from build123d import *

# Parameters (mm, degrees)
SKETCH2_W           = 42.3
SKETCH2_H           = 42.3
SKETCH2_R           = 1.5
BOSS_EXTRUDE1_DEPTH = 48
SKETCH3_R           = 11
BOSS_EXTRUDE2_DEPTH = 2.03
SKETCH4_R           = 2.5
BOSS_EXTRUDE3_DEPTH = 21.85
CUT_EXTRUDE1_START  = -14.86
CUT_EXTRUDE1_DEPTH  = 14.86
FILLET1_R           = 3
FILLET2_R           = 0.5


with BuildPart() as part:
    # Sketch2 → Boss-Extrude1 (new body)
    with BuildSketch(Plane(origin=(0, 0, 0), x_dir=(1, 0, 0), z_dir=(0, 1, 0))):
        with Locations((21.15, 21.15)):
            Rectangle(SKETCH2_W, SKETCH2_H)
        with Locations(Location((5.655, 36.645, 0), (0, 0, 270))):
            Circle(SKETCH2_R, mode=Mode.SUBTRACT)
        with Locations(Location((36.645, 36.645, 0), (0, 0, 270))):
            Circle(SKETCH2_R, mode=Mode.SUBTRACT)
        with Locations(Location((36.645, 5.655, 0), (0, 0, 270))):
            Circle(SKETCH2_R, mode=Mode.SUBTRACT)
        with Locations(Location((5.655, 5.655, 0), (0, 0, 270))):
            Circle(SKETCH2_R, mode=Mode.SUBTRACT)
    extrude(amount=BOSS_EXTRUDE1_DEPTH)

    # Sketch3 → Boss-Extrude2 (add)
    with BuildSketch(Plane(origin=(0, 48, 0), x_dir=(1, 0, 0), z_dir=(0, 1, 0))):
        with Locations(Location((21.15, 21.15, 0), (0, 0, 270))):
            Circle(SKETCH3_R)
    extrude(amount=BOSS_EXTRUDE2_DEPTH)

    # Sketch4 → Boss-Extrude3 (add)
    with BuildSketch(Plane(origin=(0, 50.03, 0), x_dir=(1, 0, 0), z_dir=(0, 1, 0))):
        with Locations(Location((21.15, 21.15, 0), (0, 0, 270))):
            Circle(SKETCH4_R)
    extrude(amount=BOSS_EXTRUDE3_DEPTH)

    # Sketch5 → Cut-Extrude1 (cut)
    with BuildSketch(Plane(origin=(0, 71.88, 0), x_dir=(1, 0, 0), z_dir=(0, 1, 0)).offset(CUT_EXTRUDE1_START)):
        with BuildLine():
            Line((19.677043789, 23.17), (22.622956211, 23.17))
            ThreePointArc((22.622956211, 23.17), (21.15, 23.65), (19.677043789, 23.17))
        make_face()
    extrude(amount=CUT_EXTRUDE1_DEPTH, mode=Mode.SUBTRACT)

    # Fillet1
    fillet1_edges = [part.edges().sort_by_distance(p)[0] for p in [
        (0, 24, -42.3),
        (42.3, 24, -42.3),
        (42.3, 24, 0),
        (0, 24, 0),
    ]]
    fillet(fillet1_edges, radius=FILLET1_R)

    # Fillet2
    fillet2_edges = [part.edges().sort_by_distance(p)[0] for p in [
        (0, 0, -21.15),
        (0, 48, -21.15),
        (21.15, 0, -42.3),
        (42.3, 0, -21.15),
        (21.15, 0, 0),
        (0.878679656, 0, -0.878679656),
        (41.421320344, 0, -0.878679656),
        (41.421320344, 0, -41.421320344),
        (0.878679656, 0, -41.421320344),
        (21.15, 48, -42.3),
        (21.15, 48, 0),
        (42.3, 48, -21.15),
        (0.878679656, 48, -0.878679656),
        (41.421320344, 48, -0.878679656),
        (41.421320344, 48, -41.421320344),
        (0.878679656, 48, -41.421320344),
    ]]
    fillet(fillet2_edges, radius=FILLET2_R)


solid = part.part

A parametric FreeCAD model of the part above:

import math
import FreeCAD as App
import Part
import Sketcher


def edges_at(feature, points):
    """Names of the edges that pass closest to the given points."""
    edges = feature.Shape.Edges
    near = lambda p: min(range(len(edges)), key=lambda i: edges[i].distToShape(Part.Vertex(*p))[0])
    return sorted({f"Edge{near(p) + 1}" for p in points})


def add_polygon(sketch, points):
    """Adds a closed chain of lines whose ends are joined by coincident constraints."""
    first, n = sketch.GeometryCount, len(points)
    for a, b in zip(points, points[1:] + points[:1]):
        sketch.addGeometry(Part.LineSegment(App.Vector(*a, 0), App.Vector(*b, 0)), False)
    for i in range(n):
        sketch.addConstraint(Sketcher.Constraint("Coincident", first + i, 2, first + (i + 1) % n, 1))

doc = App.newDocument("Part")
body = doc.addObject("PartDesign::Body", "Body")

sketch1 = doc.addObject("Sketcher::SketchObject", "Sketch")
body.addObject(sketch1)
sketch1.AttachmentSupport = (doc.XZ_Plane, [""])
sketch1.MapMode = "FlatFace"
add_polygon(sketch1, [(0, -42.3), (0, 0), (42.3, 0), (42.3, -42.3)])
sketch1.addGeometry(Part.Circle(App.Vector(5.7, -5.7, 0), App.Vector(0, 0, 1), 1.5), False)
sketch1.addGeometry(Part.Circle(App.Vector(36.6, -5.7, 0), App.Vector(0, 0, 1), 1.5), False)
sketch1.addGeometry(Part.Circle(App.Vector(5.7, -36.6, 0), App.Vector(0, 0, 1), 1.5), False)
sketch1.addGeometry(Part.Circle(App.Vector(36.6, -36.6, 0), App.Vector(0, 0, 1), 1.5), False)
sketch1.addConstraint([
    Sketcher.Constraint("Vertical", 0),
    Sketcher.Constraint("Horizontal", 1),
    Sketcher.Constraint("Vertical", 2),
    Sketcher.Constraint("Horizontal", 3),
    Sketcher.Constraint("Coincident", 0, 2, -1, 1),
    Sketcher.Constraint("Equal", 4, 5),
    Sketcher.Constraint("Equal", 5, 6),
    Sketcher.Constraint("Equal", 6, 7),
    Sketcher.Constraint("Horizontal", 4, 3, 5, 3),
    Sketcher.Constraint("Horizontal", 6, 3, 7, 3),
    Sketcher.Constraint("Vertical", 4, 3, 6, 3),
    Sketcher.Constraint("Vertical", 5, 3, 7, 3),
    Sketcher.Constraint("Equal", 3, 0),
    Sketcher.Constraint("Diameter", 4, 3.0),
    Sketcher.Constraint("DistanceX", 1, 1, 1, 2, 42.3),
    Sketcher.Constraint("DistanceX", 4, 3, 5, 3, 30.99),
    Sketcher.Constraint("DistanceY", 6, 3, 4, 3, 30.99),
    Sketcher.Constraint("DistanceX", -1, 1, 4, 3, 5.655),
    Sketcher.Constraint("DistanceY", 4, 3, -1, 1, 5.655),
])
pad1 = doc.addObject("PartDesign::Pad", "Pad")
body.addObject(pad1)
pad1.Profile = sketch1
pad1.Length = 48
pad1.Reversed = True

sketch2 = doc.addObject("Sketcher::SketchObject", "Sketch001")
body.addObject(sketch2)
sketch2.AttachmentSupport = (doc.XZ_Plane, [""])
sketch2.MapMode = "FlatFace"
sketch2.AttachmentOffset = App.Placement(App.Vector(0, 0, -48), App.Rotation())
sketch2.addGeometry(Part.Circle(App.Vector(21, -21, 0), App.Vector(0, 0, 1), 11), False)
sketch2.addConstraint([
    Sketcher.Constraint("Diameter", 0, 22.0),
    Sketcher.Constraint("DistanceX", -1, 1, 0, 3, 21.15),
    Sketcher.Constraint("DistanceY", 0, 3, -1, 1, 21.15),
])
pad2 = doc.addObject("PartDesign::Pad", "Pad001")
body.addObject(pad2)
pad2.Profile = sketch2
pad2.Length = 2.03
pad2.Reversed = True

sketch3 = doc.addObject("Sketcher::SketchObject", "Sketch002")
body.addObject(sketch3)
sketch3.AttachmentSupport = (doc.XZ_Plane, [""])
sketch3.MapMode = "FlatFace"
sketch3.AttachmentOffset = App.Placement(App.Vector(0, 0, -50.03), App.Rotation())
sketch3.addGeometry(Part.Circle(App.Vector(21.1, -21.1, 0), App.Vector(0, 0, 1), 2.5), False)
sketch3.addConstraint([
    Sketcher.Constraint("Diameter", 0, 5.0),
    Sketcher.Constraint("DistanceX", -1, 1, 0, 3, 21.15),
    Sketcher.Constraint("DistanceY", 0, 3, -1, 1, 21.15),
])
pad3 = doc.addObject("PartDesign::Pad", "Pad002")
body.addObject(pad3)
pad3.Profile = sketch3
pad3.Length = 21.85
pad3.Reversed = True

sketch4 = doc.addObject("Sketcher::SketchObject", "Sketch003")
body.addObject(sketch4)
sketch4.AttachmentSupport = (doc.XZ_Plane, [""])
sketch4.MapMode = "FlatFace"
sketch4.AttachmentOffset = App.Placement(App.Vector(0, 0, -57.02), App.Rotation())
sketch4.addGeometry([
    Part.LineSegment(App.Vector(19.7, -23.2, 0), App.Vector(22.6, -23.2, 0)),
    Part.ArcOfCircle(Part.Circle(App.Vector(21.1, -21.1, 0), App.Vector(0, 0, 1), 2.5), math.radians(-126), math.radians(-54)),
], False)
sketch4.addConstraint([
    Sketcher.Constraint("Coincident", 0, 1, 1, 1),
    Sketcher.Constraint("Coincident", 1, 2, 0, 2),
    Sketcher.Constraint("Horizontal", 0),
    Sketcher.Constraint("Radius", 1, 2.5),
    Sketcher.Constraint("DistanceX", -1, 1, 1, 3, 21.15),
    Sketcher.Constraint("DistanceY", 1, 3, -1, 1, 21.15),
    Sketcher.Constraint("DistanceY", 0, 1, -1, 1, 23.17),
])
pocket1 = doc.addObject("PartDesign::Pocket", "Pocket")
body.addObject(pocket1)
pocket1.Profile = sketch4
pocket1.Length = 14.86
doc.recompute()

fillet = doc.addObject("PartDesign::Fillet", "Fillet")
body.addObject(fillet)
fillet.Base = (pocket1, edges_at(pocket1, [
    (0, 24, -42.3),
    (42.3, 24, -42.3),
    (42.3, 24, 0),
    (0, 24, 0),
]))
fillet.Radius = 3
doc.recompute()

fillet2 = doc.addObject("PartDesign::Fillet", "Fillet001")
body.addObject(fillet2)
fillet2.Base = (fillet, edges_at(fillet, [
    (0, 0, -21.15),
    (0, 48, -21.15),
    (21.15, 0, -42.3),
    (42.3, 0, -21.15),
    (21.15, 0, 0),
    (0.879, 0, -0.879),
    (41.421, 0, -0.879),
    (41.421, 0, -41.421),
    (0.879, 0, -41.421),
    (21.15, 48, -42.3),
    (21.15, 48, 0),
    (42.3, 48, -21.15),
    (0.879, 48, -0.879),
    (41.421, 48, -0.879),
    (41.421, 48, -41.421),
    (0.879, 48, -41.421),
]))
fillet2.Radius = 0.5

doc.recompute()
